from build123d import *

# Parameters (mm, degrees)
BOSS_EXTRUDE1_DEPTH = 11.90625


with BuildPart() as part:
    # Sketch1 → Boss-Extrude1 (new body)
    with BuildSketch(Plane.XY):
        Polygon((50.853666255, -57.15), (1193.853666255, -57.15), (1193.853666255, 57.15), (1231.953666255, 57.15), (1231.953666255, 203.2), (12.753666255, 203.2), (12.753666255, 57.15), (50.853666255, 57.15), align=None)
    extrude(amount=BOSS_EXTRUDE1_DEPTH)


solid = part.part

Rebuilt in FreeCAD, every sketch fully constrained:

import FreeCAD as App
import Part
import Sketcher
from FreeCAD import Vector
Q = App.Units.Quantity

doc = App.newDocument("Part")
body = doc.addObject("PartDesign::Body", "Body")

sketch1 = doc.addObject("Sketcher::SketchObject", "Sketch")
body.addObject(sketch1)
sketch1.AttachmentSupport = (doc.XY_Plane, [""])
sketch1.MapMode = "FlatFace"
sketch1.addGeometry([
    Part.LineSegment(Vector(51, -57, 0), Vector(1194, -57, 0)),
    Part.LineSegment(Vector(1194, -57, 0), Vector(1194, 57, 0)),
    Part.LineSegment(Vector(1194, 57, 0), Vector(1232, 57, 0)),
    Part.LineSegment(Vector(1232, 57, 0), Vector(1232, 203, 0)),
    Part.LineSegment(Vector(1232, 203, 0), Vector(13, 203, 0)),
    Part.LineSegment(Vector(13, 203, 0), Vector(13, 57, 0)),
    Part.LineSegment(Vector(13, 57, 0), Vector(51, 57, 0)),
    Part.LineSegment(Vector(51, 57, 0), Vector(51, -57, 0)),
], False)
sketch1.addConstraint([
    Sketcher.Constraint("Coincident", 0, 2, 1, 1),
    Sketcher.Constraint("Coincident", 1, 2, 2, 1),
    Sketcher.Constraint("Coincident", 2, 2, 3, 1),
    Sketcher.Constraint("Coincident", 3, 2, 4, 1),
    Sketcher.Constraint("Coincident", 4, 2, 5, 1),
    Sketcher.Constraint("Coincident", 5, 2, 6, 1),
    Sketcher.Constraint("Coincident", 6, 2, 7, 1),
    Sketcher.Constraint("Coincident", 7, 2, 0, 1),
    Sketcher.Constraint("Horizontal", 0),
    Sketcher.Constraint("Vertical", 1),
    Sketcher.Constraint("Horizontal", 2),
    Sketcher.Constraint("Vertical", 3),
    Sketcher.Constraint("Horizontal", 4),
    Sketcher.Constraint("Vertical", 5),
    Sketcher.Constraint("Horizontal", 6),
    Sketcher.Constraint("Vertical", 7),
    Sketcher.Constraint("Horizontal", 2, 2, 5, 2),
    Sketcher.Constraint("Equal", 2, 6),
    Sketcher.Constraint("DistanceX", 0, 1, 0, 2, Q("45 in")),
    Sketcher.Constraint("DistanceX", 4, 2, 4, 1, Q("48 in")),
    Sketcher.Constraint("DistanceY", 1, 1, 1, 2, Q("4.5 in")),
    Sketcher.Constraint("DistanceY", -1, 1, 3, 2, Q("8 in")),
    Sketcher.Constraint("DistanceY", 3, 1, 3, 2, Q("5.75 in")),
    Sketcher.Constraint("DistanceX", -1, 1, 0, 2, 1193.853666),
])
pad1 = doc.addObject("PartDesign::Pad", "Pad")
body.addObject(pad1)
pad1.Profile = sketch1
pad1.Length = Q("0.46875 in")

doc.recompute()
